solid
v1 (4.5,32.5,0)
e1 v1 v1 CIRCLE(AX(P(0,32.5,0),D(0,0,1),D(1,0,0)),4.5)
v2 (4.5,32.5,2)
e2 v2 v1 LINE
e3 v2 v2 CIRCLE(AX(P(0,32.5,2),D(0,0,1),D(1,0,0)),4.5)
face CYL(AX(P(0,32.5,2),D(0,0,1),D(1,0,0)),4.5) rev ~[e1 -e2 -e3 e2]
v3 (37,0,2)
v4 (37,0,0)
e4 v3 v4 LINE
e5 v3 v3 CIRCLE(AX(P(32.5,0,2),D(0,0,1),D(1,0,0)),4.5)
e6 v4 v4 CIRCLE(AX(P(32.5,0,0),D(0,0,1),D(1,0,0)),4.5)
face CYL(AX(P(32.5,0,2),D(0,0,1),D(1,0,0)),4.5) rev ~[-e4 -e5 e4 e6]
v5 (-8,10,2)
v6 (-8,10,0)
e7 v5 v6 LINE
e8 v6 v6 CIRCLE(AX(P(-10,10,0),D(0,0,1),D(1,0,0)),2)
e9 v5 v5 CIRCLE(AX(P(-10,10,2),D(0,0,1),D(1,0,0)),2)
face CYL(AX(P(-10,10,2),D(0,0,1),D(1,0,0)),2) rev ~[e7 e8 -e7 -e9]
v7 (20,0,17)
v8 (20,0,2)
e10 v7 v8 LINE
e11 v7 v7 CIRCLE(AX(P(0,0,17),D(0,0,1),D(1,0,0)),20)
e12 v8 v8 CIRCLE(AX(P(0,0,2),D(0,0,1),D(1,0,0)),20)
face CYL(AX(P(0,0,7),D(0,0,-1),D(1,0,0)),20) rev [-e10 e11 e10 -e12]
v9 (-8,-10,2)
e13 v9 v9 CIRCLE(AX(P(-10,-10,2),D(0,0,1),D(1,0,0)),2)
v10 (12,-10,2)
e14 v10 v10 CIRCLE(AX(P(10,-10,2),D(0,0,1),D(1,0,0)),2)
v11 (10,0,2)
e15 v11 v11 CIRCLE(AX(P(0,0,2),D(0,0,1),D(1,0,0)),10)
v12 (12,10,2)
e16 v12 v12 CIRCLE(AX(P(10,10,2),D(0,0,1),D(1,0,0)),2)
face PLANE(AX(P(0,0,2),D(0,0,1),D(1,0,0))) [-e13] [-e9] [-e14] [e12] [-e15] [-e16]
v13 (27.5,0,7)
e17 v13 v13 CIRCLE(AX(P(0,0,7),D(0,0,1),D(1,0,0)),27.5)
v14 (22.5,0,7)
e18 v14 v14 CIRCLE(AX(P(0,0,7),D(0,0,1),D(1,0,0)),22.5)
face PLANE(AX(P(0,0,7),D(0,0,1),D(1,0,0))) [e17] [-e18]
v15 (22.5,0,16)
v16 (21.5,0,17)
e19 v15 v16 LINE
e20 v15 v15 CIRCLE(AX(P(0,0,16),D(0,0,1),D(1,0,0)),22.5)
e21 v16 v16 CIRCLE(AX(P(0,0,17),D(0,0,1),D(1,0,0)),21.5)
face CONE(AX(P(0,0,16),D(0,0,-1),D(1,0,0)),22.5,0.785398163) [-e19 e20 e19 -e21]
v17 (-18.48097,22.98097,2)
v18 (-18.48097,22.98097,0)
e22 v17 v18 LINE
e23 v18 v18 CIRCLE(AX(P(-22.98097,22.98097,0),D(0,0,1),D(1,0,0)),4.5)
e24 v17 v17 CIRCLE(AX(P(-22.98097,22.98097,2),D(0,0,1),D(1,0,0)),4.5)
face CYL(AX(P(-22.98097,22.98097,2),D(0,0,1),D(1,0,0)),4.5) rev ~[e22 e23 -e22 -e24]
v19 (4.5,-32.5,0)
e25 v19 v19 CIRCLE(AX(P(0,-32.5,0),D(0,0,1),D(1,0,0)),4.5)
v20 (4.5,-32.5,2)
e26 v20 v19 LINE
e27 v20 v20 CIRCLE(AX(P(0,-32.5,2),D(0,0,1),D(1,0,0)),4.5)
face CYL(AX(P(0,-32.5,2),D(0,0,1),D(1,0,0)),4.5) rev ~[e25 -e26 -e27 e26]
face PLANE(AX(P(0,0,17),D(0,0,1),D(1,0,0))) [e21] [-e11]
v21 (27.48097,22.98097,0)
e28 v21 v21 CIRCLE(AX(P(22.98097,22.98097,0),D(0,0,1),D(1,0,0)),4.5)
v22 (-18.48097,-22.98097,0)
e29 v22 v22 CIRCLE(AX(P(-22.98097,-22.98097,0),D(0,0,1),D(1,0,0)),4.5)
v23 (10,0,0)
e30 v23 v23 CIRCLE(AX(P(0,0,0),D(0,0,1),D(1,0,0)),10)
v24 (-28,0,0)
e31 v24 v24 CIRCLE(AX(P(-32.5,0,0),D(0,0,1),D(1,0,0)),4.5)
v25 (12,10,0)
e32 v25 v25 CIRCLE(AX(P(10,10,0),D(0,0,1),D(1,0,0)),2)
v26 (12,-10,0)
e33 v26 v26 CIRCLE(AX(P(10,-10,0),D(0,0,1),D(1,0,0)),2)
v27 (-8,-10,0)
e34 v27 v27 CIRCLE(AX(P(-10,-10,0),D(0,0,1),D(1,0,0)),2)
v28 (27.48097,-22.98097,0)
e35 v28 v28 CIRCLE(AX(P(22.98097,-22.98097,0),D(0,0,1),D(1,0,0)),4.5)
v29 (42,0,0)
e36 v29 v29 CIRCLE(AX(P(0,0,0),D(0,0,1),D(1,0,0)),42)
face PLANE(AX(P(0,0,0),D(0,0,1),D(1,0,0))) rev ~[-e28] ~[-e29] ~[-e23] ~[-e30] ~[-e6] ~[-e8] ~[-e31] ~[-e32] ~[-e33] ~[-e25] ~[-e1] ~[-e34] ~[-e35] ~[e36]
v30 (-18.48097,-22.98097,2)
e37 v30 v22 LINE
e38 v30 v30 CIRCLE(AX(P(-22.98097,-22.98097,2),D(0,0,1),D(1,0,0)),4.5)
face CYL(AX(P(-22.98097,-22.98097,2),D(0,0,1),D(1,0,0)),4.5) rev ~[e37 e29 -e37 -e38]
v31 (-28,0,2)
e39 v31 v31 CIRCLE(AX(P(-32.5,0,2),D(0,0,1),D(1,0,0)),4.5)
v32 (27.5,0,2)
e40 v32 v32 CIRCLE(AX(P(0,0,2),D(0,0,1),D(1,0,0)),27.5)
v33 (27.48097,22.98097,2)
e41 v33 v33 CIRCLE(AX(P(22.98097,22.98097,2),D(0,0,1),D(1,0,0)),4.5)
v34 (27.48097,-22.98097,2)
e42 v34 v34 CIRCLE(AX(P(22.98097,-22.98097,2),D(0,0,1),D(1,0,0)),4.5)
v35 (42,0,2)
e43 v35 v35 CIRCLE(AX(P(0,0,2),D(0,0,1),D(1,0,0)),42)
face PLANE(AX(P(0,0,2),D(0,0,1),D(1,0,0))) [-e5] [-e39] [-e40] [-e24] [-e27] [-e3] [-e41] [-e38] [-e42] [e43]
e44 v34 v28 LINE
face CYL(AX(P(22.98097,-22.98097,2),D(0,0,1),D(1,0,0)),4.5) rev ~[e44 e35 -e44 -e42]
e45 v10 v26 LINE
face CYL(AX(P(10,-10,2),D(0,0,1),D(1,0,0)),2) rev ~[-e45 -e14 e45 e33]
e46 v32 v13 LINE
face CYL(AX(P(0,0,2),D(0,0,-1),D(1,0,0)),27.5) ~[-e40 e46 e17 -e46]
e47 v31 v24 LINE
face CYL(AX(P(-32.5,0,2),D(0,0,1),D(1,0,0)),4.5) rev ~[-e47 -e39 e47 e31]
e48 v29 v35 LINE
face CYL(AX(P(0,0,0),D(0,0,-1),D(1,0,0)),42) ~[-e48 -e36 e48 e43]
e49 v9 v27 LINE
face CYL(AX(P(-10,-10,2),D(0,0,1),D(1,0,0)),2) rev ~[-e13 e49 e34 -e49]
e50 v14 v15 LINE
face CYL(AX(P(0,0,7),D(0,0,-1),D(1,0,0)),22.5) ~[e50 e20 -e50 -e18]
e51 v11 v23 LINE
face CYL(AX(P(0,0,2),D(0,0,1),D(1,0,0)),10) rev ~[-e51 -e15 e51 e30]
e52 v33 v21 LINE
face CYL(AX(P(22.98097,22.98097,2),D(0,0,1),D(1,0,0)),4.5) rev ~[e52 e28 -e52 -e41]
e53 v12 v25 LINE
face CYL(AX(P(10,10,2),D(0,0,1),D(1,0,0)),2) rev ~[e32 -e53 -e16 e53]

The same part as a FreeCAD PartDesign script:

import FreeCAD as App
import Part
import Sketcher

V = App.Vector
Q = App.Units.Quantity


def edges_at(feature, points):
    """Names of the edges that pass closest to the given points."""
    edges = feature.Shape.Edges
    near = lambda p: min(range(len(edges)), key=lambda i: edges[i].distToShape(Part.Vertex(*p))[0])
    return sorted({f"Edge{near(p) + 1}" for p in points})

doc = App.newDocument("Part")
body = doc.addObject("PartDesign::Body", "Body")

# Sketch on XY plane
sketch1 = body.newObject("Sketcher::SketchObject", "Sketch")
sketch1.AttachmentSupport = (doc.getObject("XY_Plane"), [""])
sketch1.MapMode = "FlatFace"
sketch1.addGeometry(Part.Circle(V(0, 0, 0), V(0, 0, 1), 42), False)
sketch1.addConstraint(Sketcher.Constraint("Coincident", 0, 3, -1, 1))
sketch1.addConstraint(Sketcher.Constraint("Diameter", 0, Q("84 mm")))
pad1 = body.newObject("PartDesign::Pad", "Pad")
pad1.Profile = sketch1
pad1.Length = 2

# Sketch on XY plane
sketch2 = body.newObject("Sketcher::SketchObject", "Sketch001")
sketch2.AttachmentSupport = (doc.getObject("XY_Plane"), [""])
sketch2.MapMode = "FlatFace"
sketch2.AttachmentOffset = App.Placement(V(0, 0, 2), App.Rotation())
sketch2.addGeometry(Part.Circle(V(0, 0, 0), V(0, 0, 1), 28), False)
sketch2.addGeometry(Part.Circle(V(0, 0, 0), V(0, 0, 1), 20), False)
sketch2.addConstraint(Sketcher.Constraint("Coincident", 0, 3, -1, 1))
sketch2.addConstraint(Sketcher.Constraint("Coincident", 1, 3, -1, 1))
sketch2.addConstraint(Sketcher.Constraint("Diameter", 0, Q("55 mm")))
sketch2.addConstraint(Sketcher.Constraint("Diameter", 1, Q("40 mm")))
pad2 = body.newObject("PartDesign::Pad", "Pad001")
pad2.Profile = sketch2
pad2.Length = 5

# Sketch on XY plane
sketch3 = body.newObject("Sketcher::SketchObject", "Sketch002")
sketch3.AttachmentSupport = (doc.getObject("XY_Plane"), [""])
sketch3.MapMode = "FlatFace"
sketch3.AttachmentOffset = App.Placement(V(0, 0, 7), App.Rotation())
sketch3.addGeometry(Part.Circle(V(0, 0, 0), V(0, 0, 1), 22), False)
sketch3.addGeometry(Part.Circle(V(0, 0, 0), V(0, 0, 1), 20), False)
sketch3.addConstraint(Sketcher.Constraint("Coincident", 0, 3, -1, 1))
sketch3.addConstraint(Sketcher.Constraint("Coincident", 1, 3, -1, 1))
sketch3.addConstraint(Sketcher.Constraint("Diameter", 0, Q("45 mm")))
sketch3.addConstraint(Sketcher.Constraint("Diameter", 1, Q("40 mm")))
pad3 = body.newObject("PartDesign::Pad", "Pad002")
pad3.Profile = sketch3
pad3.Length = 10
doc.recompute()

chamfer = body.newObject("PartDesign::Chamfer", "Chamfer")
chamfer.Base = (pad3, edges_at(pad3, [(-22.5, 0, 17)]))
chamfer.Size = 1

# Sketch on XY plane
sketch4 = body.newObject("Sketcher::SketchObject", "Sketch003")
sketch4.AttachmentSupport = (doc.getObject("XY_Plane"), [""])
sketch4.MapMode = "FlatFace"
sketch4.AttachmentOffset = App.Placement(V(0, 0, 2), App.Rotation())
sketch4.addGeometry(Part.Circle(V(-10, 10, 0), V(0, 0, 1), 2), False)
sketch4.addGeometry(Part.Circle(V(10, 10, 0), V(0, 0, 1), 2), False)
sketch4.addGeometry(Part.Circle(V(10, -10, 0), V(0, 0, 1), 2), False)
sketch4.addGeometry(Part.Circle(V(-10, -10, 0), V(0, 0, 1), 2), False)
sketch4.addConstraint(Sketcher.Constraint("Equal", 0, 1))
sketch4.addConstraint(Sketcher.Constraint("Equal", 1, 2))
sketch4.addConstraint(Sketcher.Constraint("Equal", 2, 3))
sketch4.addConstraint(Sketcher.Constraint("Symmetric", 0, 3, 2, 3, -1, 1))
sketch4.addConstraint(Sketcher.Constraint("Symmetric", 1, 3, 3, 3, -1, 1))
sketch4.addConstraint(Sketcher.Constraint("Symmetric", 0, 3, 1, 3, -2))
sketch4.addConstraint(Sketcher.Constraint("Diameter", 0, Q("4 mm")))
sketch4.addConstraint(Sketcher.Constraint("DistanceX", 0, 3, -1, 1, Q("10 mm")))
sketch4.addConstraint(Sketcher.Constraint("DistanceY", -1, 1, 0, 3, Q("10 mm")))
pocket1 = body.newObject("PartDesign::Pocket", "Pocket")
pocket1.Profile = sketch4
pocket1.Type = "ThroughAll"

# Sketch on XY plane
sketch5 = body.newObject("Sketcher::SketchObject", "Sketch004")
sketch5.AttachmentSupport = (doc.getObject("XY_Plane"), [""])
sketch5.MapMode = "FlatFace"
sketch5.AttachmentOffset = App.Placement(V(0, 0, 2), App.Rotation())
sketch5.addGeometry(Part.Circle(V(0, 0, 0), V(0, 0, 1), 10), False)
sketch5.addConstraint(Sketcher.Constraint("Coincident", 0, 3, -1, 1))
sketch5.addConstraint(Sketcher.Constraint("Diameter", 0, Q("20 mm")))
pocket2 = body.newObject("PartDesign::Pocket", "Pocket001")
pocket2.Profile = sketch5
pocket2.Length = 5

# Sketch on XY plane
sketch6 = body.newObject("Sketcher::SketchObject", "Sketch005")
sketch6.AttachmentSupport = (doc.getObject("XY_Plane"), [""])
sketch6.MapMode = "FlatFace"
sketch6.AttachmentOffset = App.Placement(V(0, 0, 2), App.Rotation())
sketch6.addGeometry(Part.Circle(V(-23, 23, 0), V(0, 0, 1), 4.5), False)
sketch6.addGeometry(Part.Circle(V(0, 32.5, 0), V(0, 0, 1), 4.5), False)
sketch6.addGeometry(Part.Circle(V(23, 23, 0), V(0, 0, 1), 4.5), False)
sketch6.addGeometry(Part.Circle(V(32.5, 0, 0), V(0, 0, 1), 4.5), False)
sketch6.addGeometry(Part.Circle(V(-32.5, 0, 0), V(0, 0, 1), 4.5), False)
sketch6.addGeometry(Part.Circle(V(-23, -23, 0), V(0, 0, 1), 4.5), False)
sketch6.addGeometry(Part.Circle(V(0, -32.5, 0), V(0, 0, 1), 4.5), False)
sketch6.addGeometry(Part.Circle(V(23, -23, 0), V(0, 0, 1), 4.5), False)
sketch6.addConstraint(Sketcher.Constraint("Equal", 0, 1))
sketch6.addConstraint(Sketcher.Constraint("Equal", 1, 2))
sketch6.addConstraint(Sketcher.Constraint("Equal", 2, 3))
sketch6.addConstraint(Sketcher.Constraint("Equal", 3, 4))
sketch6.addConstraint(Sketcher.Constraint("Equal", 4, 5))
sketch6.addConstraint(Sketcher.Constraint("Equal", 5, 6))
sketch6.addConstraint(Sketcher.Constraint("Equal", 6, 7))
sketch6.addConstraint(Sketcher.Constraint("Symmetric", 3, 3, 4, 3, -1, 1))
sketch6.addConstraint(Sketcher.Constraint("Symmetric", 2, 3, 5, 3, -1, 1))
sketch6.addConstraint(Sketcher.Constraint("Symmetric", 1, 3, 6, 3, -1, 1))
sketch6.addConstraint(Sketcher.Constraint("Symmetric", 0, 3, 7, 3, -1, 1))
sketch6.addConstraint(Sketcher.Constraint("Symmetric", 0, 3, 2, 3, -2))
sketch6.addConstraint(Sketcher.Constraint("PointOnObject", 1, 3, -2))
sketch6.addConstraint(Sketcher.Constraint("PointOnObject", 3, 3, -1))
sketch6.addConstraint(Sketcher.Constraint("Diameter", 0, Q("9 mm")))
sketch6.addConstraint(Sketcher.Constraint("DistanceX", 4, 3, 3, 3, Q("65 mm")))
sketch6.addConstraint(Sketcher.Constraint("DistanceY", -1, 1, 1, 3, Q("32.5 mm")))
sketch6.addConstraint(Sketcher.Constraint("DistanceX", 0, 3, -1, 1, Q("22.98097 mm")))
sketch6.addConstraint(Sketcher.Constraint("DistanceY", -1, 1, 0, 3, Q("22.98097 mm")))
pocket3 = body.newObject("PartDesign::Pocket", "Pocket002")
pocket3.Profile = sketch6
pocket3.Type = "ThroughAll"

doc.recompute()
